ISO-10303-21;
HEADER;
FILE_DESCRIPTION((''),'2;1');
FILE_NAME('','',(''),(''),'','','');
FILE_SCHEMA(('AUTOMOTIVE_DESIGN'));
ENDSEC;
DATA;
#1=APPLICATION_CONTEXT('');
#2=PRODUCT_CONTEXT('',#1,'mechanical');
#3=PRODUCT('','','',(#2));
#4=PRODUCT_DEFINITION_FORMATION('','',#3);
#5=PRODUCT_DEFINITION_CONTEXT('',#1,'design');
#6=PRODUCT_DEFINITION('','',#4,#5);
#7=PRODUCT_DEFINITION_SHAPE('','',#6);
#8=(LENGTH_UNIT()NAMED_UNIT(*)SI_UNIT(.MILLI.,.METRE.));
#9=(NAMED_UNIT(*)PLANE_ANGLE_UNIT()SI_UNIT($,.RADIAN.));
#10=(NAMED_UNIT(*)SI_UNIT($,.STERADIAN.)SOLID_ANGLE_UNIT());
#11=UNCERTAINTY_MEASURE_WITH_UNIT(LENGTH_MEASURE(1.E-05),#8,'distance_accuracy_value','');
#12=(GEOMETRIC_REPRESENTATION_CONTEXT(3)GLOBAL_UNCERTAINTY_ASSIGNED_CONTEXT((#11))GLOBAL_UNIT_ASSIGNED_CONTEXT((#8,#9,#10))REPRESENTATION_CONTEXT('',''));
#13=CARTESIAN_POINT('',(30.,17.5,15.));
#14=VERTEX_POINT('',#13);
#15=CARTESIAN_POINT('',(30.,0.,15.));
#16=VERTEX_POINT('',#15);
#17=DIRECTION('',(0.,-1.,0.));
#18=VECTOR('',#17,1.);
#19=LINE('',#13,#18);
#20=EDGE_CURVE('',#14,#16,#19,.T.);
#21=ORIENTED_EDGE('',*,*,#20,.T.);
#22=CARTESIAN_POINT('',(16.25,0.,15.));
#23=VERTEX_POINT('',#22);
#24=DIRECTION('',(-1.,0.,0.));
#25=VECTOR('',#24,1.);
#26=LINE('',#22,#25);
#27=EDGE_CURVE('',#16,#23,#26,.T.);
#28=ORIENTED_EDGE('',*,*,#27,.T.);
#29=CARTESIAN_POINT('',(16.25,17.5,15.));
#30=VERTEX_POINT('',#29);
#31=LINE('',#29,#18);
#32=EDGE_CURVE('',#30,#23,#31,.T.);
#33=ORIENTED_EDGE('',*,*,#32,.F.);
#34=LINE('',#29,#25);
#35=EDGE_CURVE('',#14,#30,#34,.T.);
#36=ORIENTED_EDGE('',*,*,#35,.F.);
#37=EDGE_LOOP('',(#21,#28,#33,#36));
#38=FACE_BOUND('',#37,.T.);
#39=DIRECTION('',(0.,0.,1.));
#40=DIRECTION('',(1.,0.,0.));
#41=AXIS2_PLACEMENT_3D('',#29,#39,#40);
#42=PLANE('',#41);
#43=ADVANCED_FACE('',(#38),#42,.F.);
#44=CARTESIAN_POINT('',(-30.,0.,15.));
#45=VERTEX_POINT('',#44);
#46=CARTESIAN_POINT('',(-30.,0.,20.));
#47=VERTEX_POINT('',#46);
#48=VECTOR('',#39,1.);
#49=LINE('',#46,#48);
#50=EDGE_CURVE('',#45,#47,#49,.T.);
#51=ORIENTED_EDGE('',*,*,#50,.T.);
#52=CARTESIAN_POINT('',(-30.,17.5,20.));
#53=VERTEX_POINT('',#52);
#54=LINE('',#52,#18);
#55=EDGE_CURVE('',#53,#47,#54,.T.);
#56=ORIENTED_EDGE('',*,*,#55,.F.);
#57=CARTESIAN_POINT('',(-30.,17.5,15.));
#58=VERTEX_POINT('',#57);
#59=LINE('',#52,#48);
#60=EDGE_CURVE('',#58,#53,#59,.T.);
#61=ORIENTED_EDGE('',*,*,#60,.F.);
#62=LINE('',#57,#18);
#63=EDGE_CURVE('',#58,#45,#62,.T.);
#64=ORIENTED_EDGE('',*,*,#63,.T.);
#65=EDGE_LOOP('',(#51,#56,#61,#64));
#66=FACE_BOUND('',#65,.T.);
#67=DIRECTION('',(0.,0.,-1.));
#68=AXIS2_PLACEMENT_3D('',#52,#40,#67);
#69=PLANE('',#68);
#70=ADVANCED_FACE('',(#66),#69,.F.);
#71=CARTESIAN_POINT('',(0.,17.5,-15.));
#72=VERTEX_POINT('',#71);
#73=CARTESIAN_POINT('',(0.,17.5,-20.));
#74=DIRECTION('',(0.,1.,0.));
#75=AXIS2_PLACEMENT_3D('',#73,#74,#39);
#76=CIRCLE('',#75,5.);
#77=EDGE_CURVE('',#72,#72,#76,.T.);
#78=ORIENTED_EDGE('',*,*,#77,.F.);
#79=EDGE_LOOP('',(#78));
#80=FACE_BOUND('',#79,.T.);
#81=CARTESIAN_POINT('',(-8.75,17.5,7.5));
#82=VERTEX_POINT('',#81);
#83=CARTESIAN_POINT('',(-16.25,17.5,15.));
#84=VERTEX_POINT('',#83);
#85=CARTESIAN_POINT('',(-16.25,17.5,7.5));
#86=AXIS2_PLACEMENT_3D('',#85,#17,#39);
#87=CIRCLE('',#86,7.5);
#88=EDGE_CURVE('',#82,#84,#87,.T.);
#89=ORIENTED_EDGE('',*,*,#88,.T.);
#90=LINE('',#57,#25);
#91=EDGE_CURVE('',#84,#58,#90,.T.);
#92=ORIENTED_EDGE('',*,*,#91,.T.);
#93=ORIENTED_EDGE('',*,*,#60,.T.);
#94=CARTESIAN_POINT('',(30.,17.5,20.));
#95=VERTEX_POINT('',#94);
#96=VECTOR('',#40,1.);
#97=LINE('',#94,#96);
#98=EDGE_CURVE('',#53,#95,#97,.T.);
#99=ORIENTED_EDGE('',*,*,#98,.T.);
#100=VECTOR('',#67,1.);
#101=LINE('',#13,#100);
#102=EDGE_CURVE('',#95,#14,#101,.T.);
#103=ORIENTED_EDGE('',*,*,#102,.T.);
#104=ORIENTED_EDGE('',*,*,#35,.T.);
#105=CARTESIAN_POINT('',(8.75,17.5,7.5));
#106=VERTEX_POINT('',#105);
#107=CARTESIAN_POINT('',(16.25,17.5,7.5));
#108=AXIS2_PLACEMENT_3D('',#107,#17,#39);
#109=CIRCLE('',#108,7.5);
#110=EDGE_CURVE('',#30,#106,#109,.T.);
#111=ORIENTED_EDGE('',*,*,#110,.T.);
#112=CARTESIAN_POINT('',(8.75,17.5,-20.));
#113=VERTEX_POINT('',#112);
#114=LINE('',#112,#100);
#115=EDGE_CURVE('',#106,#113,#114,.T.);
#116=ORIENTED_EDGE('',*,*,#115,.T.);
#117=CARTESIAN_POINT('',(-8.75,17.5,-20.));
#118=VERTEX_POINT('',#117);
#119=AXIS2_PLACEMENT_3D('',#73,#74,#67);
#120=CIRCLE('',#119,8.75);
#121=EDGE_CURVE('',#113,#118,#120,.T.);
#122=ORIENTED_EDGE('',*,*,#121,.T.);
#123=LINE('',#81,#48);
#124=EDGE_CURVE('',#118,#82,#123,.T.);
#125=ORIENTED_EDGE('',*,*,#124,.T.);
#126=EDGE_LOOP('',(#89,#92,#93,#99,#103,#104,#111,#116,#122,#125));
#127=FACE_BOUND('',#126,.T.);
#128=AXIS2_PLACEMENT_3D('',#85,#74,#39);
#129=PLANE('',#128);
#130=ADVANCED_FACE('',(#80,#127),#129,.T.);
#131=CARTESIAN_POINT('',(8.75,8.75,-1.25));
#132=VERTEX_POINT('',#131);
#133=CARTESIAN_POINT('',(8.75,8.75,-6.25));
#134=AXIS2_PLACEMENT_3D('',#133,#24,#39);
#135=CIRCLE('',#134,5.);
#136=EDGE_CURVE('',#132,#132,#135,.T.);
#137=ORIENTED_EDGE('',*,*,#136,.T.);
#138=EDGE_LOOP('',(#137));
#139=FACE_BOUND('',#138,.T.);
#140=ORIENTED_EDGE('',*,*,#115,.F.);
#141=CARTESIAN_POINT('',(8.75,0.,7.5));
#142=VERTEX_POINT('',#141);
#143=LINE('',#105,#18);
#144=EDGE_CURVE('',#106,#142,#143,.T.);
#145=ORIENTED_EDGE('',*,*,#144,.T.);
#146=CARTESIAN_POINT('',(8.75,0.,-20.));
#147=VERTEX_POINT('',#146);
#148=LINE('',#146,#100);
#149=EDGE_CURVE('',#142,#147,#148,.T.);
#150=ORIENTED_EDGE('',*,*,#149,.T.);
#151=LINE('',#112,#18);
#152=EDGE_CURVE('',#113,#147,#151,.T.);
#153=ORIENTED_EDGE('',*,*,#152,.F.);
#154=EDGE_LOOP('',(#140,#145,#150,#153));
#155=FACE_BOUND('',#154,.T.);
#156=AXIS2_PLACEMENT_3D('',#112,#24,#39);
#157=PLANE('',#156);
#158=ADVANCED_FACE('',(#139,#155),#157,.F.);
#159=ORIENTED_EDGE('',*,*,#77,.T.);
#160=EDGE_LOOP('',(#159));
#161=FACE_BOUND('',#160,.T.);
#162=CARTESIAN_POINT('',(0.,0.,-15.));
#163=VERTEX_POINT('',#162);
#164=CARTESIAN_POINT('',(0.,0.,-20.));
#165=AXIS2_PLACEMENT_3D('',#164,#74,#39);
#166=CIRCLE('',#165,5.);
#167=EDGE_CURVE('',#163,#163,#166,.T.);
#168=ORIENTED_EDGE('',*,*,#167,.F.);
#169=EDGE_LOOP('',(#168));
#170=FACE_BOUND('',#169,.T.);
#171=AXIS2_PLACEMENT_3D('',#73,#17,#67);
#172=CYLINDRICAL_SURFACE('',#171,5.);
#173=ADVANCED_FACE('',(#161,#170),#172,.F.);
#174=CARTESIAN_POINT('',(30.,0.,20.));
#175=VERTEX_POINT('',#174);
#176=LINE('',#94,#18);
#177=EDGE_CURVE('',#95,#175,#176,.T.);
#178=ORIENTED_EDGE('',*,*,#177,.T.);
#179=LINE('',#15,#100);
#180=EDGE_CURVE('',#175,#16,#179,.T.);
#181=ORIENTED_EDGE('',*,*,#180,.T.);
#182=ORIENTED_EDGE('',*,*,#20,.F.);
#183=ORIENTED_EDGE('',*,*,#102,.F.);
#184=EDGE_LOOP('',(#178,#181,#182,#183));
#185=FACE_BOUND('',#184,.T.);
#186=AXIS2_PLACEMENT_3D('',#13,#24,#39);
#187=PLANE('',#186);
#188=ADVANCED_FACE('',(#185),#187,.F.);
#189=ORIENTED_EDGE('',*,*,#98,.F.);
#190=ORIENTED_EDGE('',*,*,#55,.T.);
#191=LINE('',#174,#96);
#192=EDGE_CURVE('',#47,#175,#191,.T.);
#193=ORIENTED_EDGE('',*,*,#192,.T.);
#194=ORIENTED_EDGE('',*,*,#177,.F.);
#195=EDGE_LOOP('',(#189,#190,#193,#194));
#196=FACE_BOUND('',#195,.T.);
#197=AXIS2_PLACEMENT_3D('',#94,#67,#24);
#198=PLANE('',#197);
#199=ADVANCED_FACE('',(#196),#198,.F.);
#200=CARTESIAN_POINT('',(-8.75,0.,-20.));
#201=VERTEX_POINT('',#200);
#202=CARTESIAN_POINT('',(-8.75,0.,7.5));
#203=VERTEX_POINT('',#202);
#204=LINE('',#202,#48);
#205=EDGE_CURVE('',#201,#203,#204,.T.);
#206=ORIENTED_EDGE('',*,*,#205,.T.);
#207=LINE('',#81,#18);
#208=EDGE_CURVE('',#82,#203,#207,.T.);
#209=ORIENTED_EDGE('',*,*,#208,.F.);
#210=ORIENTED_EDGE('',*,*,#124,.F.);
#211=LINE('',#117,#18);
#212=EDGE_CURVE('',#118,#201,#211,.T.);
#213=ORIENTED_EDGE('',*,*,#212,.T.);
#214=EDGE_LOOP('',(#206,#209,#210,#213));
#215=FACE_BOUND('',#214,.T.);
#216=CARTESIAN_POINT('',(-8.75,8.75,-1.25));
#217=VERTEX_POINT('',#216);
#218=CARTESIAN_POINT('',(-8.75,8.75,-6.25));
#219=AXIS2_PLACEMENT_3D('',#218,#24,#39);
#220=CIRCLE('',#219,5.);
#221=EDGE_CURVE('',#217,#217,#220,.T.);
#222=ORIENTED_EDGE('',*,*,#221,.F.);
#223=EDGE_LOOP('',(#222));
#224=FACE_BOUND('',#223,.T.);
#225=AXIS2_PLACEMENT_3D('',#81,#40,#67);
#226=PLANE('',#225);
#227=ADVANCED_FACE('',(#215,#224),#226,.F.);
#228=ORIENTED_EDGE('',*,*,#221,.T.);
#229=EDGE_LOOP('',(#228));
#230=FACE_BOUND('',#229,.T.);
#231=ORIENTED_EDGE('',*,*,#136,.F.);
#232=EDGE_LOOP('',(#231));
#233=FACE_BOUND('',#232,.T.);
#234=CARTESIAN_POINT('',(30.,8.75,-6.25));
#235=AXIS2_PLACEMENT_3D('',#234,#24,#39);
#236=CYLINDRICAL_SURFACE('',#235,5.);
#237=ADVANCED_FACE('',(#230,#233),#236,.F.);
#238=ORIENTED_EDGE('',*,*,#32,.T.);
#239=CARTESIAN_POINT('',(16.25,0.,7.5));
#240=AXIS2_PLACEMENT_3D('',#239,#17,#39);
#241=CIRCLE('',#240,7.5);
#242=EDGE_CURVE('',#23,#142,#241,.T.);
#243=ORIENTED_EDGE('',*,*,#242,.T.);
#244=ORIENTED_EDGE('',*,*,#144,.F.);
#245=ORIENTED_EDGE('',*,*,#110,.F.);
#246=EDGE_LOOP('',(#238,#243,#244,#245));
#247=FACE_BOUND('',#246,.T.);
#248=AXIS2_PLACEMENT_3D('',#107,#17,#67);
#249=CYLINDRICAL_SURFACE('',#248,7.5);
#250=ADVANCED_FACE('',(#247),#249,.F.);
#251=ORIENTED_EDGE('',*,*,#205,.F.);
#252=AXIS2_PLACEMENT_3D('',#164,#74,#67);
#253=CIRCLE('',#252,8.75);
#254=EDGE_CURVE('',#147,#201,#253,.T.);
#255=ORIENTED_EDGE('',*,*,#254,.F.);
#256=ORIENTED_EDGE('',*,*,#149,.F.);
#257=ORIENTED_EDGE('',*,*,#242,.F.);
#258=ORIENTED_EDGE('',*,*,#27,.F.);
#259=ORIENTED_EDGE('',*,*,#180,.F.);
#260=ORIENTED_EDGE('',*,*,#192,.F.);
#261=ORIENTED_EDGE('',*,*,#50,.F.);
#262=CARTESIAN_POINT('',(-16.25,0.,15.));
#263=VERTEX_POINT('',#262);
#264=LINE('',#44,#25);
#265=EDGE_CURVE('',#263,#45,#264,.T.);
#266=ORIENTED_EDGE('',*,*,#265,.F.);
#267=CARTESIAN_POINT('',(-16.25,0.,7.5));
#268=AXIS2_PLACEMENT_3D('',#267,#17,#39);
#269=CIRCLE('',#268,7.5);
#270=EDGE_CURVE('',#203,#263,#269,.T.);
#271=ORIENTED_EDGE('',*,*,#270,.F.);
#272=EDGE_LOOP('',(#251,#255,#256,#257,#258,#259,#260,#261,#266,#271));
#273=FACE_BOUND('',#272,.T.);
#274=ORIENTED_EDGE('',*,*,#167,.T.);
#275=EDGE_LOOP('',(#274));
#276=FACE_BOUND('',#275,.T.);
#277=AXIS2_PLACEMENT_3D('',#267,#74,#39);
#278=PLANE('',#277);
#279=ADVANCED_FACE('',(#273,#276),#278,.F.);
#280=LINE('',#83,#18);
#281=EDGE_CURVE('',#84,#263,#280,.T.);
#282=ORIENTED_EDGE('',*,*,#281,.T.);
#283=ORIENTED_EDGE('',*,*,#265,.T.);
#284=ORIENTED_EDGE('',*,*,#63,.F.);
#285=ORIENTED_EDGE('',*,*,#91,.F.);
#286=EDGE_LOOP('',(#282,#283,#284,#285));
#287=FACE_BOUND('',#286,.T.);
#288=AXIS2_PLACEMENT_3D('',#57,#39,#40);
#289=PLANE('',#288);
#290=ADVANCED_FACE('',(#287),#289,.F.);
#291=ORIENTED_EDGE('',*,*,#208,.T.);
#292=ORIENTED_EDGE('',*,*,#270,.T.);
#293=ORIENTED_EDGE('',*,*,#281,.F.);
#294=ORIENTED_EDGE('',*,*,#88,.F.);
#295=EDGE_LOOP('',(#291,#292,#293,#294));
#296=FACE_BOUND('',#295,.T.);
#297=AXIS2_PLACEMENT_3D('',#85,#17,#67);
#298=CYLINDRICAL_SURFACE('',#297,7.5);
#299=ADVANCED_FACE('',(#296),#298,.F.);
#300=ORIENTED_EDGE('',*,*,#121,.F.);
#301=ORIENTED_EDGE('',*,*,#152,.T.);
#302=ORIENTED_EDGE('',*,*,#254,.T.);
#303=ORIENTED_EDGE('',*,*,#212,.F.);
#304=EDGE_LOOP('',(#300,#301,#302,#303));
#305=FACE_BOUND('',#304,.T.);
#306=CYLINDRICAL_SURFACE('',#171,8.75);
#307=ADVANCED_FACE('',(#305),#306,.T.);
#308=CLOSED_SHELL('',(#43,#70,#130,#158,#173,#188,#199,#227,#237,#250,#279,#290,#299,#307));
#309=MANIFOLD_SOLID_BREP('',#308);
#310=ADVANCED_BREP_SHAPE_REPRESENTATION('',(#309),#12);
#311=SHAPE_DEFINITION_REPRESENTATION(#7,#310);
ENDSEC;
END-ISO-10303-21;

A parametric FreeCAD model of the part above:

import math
import FreeCAD as App
import Part
import Sketcher
from FreeCAD import Vector

doc = App.newDocument("Part")
body = doc.addObject("PartDesign::Body", "Body")

# Sketch on XZ plane
sketch1 = body.newObject("Sketcher::SketchObject", "Sketch")
sketch1.AttachmentSupport = (doc.getObject("XZ_Plane"), [""])
sketch1.MapMode = "FlatFace"
sketch1.addGeometry(Part.LineSegment(Vector(-9, -20, 0), Vector(-9, 8, 0)), False)
sketch1.addGeometry(Part.ArcOfCircle(Part.Circle(Vector(-16, 8, 0), Vector(0, 0, 1), 8), math.radians(0), math.radians(90)), False)
sketch1.addGeometry(Part.LineSegment(Vector(-16, 15, 0), Vector(-30, 15, 0)), False)
sketch1.addGeometry(Part.LineSegment(Vector(-30, 15, 0), Vector(-30, 20, 0)), False)
sketch1.addGeometry(Part.LineSegment(Vector(-30, 20, 0), Vector(30, 20, 0)), False)
sketch1.addGeometry(Part.LineSegment(Vector(30, 20, 0), Vector(30, 15, 0)), False)
sketch1.addGeometry(Part.LineSegment(Vector(30, 15, 0), Vector(16, 15, 0)), False)
sketch1.addGeometry(Part.ArcOfCircle(Part.Circle(Vector(16, 8, 0), Vector(0, 0, 1), 8), math.radians(90), math.radians(180)), False)
sketch1.addGeometry(Part.LineSegment(Vector(9, 8, 0), Vector(9, -20, 0)), False)
sketch1.addGeometry(Part.ArcOfCircle(Part.Circle(Vector(0, -20, 0), Vector(0, 0, 1), 9), math.radians(180), math.radians(360)), False)
sketch1.addGeometry(Part.Circle(Vector(0, -20, 0), Vector(0, 0, 1), 5), False)
sketch1.addConstraint(Sketcher.Constraint("Tangent", 0, 2, 1, 1))
sketch1.addConstraint(Sketcher.Constraint("Tangent", 1, 2, 2, 1))
sketch1.addConstraint(Sketcher.Constraint("Coincident", 2, 2, 3, 1))
sketch1.addConstraint(Sketcher.Constraint("Coincident", 3, 2, 4, 1))
sketch1.addConstraint(Sketcher.Constraint("Coincident", 4, 2, 5, 1))
sketch1.addConstraint(Sketcher.Constraint("Coincident", 5, 2, 6, 1))
sketch1.addConstraint(Sketcher.Constraint("Tangent", 6, 2, 7, 1))
sketch1.addConstraint(Sketcher.Constraint("Tangent", 7, 2, 8, 1))
sketch1.addConstraint(Sketcher.Constraint("Tangent", 8, 2, 9, 2))
sketch1.addConstraint(Sketcher.Constraint("Tangent", 9, 1, 0, 1))
sketch1.addConstraint(Sketcher.Constraint("Vertical", 0))
sketch1.addConstraint(Sketcher.Constraint("Horizontal", 2))
sketch1.addConstraint(Sketcher.Constraint("Vertical", 3))
sketch1.addConstraint(Sketcher.Constraint("Horizontal", 4))
sketch1.addConstraint(Sketcher.Constraint("Vertical", 5))
sketch1.addConstraint(Sketcher.Constraint("Horizontal", 6))
sketch1.addConstraint(Sketcher.Constraint("Vertical", 8))
sketch1.addConstraint(Sketcher.Constraint("Coincident", 10, 3, 9, 3))
sketch1.addConstraint(Sketcher.Constraint("Equal", 1, 7))
sketch1.addConstraint(Sketcher.Constraint("Symmetric", 1, 3, 7, 3, -2))
sketch1.addConstraint(Sketcher.Constraint("Equal", 2, 6))
sketch1.addConstraint(Sketcher.Constraint("Diameter", 10, 10.0))
sketch1.addConstraint(Sketcher.Constraint("Radius", 1, 7.5))
sketch1.addConstraint(Sketcher.Constraint("DistanceX", 4, 1, 4, 2, 60.0))
sketch1.addConstraint(Sketcher.Constraint("DistanceY", 3, 1, 3, 2, 5.0))
sketch1.addConstraint(Sketcher.Constraint("Radius", 9, 8.75))
sketch1.addConstraint(Sketcher.Constraint("DistanceY", 0, 1, 0, 2, 27.5))
sketch1.addConstraint(Sketcher.Constraint("DistanceY", 9, 3, -1, 1, 20.0))
pad1 = body.newObject("PartDesign::Pad", "Pad")
pad1.Profile = sketch1
pad1.Length = 17.5
pad1.Reversed = True

# Sketch on YZ plane
sketch2 = body.newObject("Sketcher::SketchObject", "Sketch001")
sketch2.AttachmentSupport = (doc.getObject("YZ_Plane"), [""])
sketch2.MapMode = "FlatFace"
sketch2.AttachmentOffset = App.Placement(Vector(0, 0, -8.75), App.Rotation())
sketch2.addGeometry(Part.Circle(Vector(9, -6, 0), Vector(0, 0, 1), 5), False)
sketch2.addConstraint(Sketcher.Constraint("Diameter", 0, 10.0))
sketch2.addConstraint(Sketcher.Constraint("DistanceX", -1, 1, 0, 3, 8.75))
sketch2.addConstraint(Sketcher.Constraint("DistanceY", 0, 3, -1, 1, 6.25))
pocket1 = body.newObject("PartDesign::Pocket", "Pocket")
pocket1.Profile = sketch2
pocket1.Type = "ThroughAll"
pocket1.Reversed = True

doc.recompute()
